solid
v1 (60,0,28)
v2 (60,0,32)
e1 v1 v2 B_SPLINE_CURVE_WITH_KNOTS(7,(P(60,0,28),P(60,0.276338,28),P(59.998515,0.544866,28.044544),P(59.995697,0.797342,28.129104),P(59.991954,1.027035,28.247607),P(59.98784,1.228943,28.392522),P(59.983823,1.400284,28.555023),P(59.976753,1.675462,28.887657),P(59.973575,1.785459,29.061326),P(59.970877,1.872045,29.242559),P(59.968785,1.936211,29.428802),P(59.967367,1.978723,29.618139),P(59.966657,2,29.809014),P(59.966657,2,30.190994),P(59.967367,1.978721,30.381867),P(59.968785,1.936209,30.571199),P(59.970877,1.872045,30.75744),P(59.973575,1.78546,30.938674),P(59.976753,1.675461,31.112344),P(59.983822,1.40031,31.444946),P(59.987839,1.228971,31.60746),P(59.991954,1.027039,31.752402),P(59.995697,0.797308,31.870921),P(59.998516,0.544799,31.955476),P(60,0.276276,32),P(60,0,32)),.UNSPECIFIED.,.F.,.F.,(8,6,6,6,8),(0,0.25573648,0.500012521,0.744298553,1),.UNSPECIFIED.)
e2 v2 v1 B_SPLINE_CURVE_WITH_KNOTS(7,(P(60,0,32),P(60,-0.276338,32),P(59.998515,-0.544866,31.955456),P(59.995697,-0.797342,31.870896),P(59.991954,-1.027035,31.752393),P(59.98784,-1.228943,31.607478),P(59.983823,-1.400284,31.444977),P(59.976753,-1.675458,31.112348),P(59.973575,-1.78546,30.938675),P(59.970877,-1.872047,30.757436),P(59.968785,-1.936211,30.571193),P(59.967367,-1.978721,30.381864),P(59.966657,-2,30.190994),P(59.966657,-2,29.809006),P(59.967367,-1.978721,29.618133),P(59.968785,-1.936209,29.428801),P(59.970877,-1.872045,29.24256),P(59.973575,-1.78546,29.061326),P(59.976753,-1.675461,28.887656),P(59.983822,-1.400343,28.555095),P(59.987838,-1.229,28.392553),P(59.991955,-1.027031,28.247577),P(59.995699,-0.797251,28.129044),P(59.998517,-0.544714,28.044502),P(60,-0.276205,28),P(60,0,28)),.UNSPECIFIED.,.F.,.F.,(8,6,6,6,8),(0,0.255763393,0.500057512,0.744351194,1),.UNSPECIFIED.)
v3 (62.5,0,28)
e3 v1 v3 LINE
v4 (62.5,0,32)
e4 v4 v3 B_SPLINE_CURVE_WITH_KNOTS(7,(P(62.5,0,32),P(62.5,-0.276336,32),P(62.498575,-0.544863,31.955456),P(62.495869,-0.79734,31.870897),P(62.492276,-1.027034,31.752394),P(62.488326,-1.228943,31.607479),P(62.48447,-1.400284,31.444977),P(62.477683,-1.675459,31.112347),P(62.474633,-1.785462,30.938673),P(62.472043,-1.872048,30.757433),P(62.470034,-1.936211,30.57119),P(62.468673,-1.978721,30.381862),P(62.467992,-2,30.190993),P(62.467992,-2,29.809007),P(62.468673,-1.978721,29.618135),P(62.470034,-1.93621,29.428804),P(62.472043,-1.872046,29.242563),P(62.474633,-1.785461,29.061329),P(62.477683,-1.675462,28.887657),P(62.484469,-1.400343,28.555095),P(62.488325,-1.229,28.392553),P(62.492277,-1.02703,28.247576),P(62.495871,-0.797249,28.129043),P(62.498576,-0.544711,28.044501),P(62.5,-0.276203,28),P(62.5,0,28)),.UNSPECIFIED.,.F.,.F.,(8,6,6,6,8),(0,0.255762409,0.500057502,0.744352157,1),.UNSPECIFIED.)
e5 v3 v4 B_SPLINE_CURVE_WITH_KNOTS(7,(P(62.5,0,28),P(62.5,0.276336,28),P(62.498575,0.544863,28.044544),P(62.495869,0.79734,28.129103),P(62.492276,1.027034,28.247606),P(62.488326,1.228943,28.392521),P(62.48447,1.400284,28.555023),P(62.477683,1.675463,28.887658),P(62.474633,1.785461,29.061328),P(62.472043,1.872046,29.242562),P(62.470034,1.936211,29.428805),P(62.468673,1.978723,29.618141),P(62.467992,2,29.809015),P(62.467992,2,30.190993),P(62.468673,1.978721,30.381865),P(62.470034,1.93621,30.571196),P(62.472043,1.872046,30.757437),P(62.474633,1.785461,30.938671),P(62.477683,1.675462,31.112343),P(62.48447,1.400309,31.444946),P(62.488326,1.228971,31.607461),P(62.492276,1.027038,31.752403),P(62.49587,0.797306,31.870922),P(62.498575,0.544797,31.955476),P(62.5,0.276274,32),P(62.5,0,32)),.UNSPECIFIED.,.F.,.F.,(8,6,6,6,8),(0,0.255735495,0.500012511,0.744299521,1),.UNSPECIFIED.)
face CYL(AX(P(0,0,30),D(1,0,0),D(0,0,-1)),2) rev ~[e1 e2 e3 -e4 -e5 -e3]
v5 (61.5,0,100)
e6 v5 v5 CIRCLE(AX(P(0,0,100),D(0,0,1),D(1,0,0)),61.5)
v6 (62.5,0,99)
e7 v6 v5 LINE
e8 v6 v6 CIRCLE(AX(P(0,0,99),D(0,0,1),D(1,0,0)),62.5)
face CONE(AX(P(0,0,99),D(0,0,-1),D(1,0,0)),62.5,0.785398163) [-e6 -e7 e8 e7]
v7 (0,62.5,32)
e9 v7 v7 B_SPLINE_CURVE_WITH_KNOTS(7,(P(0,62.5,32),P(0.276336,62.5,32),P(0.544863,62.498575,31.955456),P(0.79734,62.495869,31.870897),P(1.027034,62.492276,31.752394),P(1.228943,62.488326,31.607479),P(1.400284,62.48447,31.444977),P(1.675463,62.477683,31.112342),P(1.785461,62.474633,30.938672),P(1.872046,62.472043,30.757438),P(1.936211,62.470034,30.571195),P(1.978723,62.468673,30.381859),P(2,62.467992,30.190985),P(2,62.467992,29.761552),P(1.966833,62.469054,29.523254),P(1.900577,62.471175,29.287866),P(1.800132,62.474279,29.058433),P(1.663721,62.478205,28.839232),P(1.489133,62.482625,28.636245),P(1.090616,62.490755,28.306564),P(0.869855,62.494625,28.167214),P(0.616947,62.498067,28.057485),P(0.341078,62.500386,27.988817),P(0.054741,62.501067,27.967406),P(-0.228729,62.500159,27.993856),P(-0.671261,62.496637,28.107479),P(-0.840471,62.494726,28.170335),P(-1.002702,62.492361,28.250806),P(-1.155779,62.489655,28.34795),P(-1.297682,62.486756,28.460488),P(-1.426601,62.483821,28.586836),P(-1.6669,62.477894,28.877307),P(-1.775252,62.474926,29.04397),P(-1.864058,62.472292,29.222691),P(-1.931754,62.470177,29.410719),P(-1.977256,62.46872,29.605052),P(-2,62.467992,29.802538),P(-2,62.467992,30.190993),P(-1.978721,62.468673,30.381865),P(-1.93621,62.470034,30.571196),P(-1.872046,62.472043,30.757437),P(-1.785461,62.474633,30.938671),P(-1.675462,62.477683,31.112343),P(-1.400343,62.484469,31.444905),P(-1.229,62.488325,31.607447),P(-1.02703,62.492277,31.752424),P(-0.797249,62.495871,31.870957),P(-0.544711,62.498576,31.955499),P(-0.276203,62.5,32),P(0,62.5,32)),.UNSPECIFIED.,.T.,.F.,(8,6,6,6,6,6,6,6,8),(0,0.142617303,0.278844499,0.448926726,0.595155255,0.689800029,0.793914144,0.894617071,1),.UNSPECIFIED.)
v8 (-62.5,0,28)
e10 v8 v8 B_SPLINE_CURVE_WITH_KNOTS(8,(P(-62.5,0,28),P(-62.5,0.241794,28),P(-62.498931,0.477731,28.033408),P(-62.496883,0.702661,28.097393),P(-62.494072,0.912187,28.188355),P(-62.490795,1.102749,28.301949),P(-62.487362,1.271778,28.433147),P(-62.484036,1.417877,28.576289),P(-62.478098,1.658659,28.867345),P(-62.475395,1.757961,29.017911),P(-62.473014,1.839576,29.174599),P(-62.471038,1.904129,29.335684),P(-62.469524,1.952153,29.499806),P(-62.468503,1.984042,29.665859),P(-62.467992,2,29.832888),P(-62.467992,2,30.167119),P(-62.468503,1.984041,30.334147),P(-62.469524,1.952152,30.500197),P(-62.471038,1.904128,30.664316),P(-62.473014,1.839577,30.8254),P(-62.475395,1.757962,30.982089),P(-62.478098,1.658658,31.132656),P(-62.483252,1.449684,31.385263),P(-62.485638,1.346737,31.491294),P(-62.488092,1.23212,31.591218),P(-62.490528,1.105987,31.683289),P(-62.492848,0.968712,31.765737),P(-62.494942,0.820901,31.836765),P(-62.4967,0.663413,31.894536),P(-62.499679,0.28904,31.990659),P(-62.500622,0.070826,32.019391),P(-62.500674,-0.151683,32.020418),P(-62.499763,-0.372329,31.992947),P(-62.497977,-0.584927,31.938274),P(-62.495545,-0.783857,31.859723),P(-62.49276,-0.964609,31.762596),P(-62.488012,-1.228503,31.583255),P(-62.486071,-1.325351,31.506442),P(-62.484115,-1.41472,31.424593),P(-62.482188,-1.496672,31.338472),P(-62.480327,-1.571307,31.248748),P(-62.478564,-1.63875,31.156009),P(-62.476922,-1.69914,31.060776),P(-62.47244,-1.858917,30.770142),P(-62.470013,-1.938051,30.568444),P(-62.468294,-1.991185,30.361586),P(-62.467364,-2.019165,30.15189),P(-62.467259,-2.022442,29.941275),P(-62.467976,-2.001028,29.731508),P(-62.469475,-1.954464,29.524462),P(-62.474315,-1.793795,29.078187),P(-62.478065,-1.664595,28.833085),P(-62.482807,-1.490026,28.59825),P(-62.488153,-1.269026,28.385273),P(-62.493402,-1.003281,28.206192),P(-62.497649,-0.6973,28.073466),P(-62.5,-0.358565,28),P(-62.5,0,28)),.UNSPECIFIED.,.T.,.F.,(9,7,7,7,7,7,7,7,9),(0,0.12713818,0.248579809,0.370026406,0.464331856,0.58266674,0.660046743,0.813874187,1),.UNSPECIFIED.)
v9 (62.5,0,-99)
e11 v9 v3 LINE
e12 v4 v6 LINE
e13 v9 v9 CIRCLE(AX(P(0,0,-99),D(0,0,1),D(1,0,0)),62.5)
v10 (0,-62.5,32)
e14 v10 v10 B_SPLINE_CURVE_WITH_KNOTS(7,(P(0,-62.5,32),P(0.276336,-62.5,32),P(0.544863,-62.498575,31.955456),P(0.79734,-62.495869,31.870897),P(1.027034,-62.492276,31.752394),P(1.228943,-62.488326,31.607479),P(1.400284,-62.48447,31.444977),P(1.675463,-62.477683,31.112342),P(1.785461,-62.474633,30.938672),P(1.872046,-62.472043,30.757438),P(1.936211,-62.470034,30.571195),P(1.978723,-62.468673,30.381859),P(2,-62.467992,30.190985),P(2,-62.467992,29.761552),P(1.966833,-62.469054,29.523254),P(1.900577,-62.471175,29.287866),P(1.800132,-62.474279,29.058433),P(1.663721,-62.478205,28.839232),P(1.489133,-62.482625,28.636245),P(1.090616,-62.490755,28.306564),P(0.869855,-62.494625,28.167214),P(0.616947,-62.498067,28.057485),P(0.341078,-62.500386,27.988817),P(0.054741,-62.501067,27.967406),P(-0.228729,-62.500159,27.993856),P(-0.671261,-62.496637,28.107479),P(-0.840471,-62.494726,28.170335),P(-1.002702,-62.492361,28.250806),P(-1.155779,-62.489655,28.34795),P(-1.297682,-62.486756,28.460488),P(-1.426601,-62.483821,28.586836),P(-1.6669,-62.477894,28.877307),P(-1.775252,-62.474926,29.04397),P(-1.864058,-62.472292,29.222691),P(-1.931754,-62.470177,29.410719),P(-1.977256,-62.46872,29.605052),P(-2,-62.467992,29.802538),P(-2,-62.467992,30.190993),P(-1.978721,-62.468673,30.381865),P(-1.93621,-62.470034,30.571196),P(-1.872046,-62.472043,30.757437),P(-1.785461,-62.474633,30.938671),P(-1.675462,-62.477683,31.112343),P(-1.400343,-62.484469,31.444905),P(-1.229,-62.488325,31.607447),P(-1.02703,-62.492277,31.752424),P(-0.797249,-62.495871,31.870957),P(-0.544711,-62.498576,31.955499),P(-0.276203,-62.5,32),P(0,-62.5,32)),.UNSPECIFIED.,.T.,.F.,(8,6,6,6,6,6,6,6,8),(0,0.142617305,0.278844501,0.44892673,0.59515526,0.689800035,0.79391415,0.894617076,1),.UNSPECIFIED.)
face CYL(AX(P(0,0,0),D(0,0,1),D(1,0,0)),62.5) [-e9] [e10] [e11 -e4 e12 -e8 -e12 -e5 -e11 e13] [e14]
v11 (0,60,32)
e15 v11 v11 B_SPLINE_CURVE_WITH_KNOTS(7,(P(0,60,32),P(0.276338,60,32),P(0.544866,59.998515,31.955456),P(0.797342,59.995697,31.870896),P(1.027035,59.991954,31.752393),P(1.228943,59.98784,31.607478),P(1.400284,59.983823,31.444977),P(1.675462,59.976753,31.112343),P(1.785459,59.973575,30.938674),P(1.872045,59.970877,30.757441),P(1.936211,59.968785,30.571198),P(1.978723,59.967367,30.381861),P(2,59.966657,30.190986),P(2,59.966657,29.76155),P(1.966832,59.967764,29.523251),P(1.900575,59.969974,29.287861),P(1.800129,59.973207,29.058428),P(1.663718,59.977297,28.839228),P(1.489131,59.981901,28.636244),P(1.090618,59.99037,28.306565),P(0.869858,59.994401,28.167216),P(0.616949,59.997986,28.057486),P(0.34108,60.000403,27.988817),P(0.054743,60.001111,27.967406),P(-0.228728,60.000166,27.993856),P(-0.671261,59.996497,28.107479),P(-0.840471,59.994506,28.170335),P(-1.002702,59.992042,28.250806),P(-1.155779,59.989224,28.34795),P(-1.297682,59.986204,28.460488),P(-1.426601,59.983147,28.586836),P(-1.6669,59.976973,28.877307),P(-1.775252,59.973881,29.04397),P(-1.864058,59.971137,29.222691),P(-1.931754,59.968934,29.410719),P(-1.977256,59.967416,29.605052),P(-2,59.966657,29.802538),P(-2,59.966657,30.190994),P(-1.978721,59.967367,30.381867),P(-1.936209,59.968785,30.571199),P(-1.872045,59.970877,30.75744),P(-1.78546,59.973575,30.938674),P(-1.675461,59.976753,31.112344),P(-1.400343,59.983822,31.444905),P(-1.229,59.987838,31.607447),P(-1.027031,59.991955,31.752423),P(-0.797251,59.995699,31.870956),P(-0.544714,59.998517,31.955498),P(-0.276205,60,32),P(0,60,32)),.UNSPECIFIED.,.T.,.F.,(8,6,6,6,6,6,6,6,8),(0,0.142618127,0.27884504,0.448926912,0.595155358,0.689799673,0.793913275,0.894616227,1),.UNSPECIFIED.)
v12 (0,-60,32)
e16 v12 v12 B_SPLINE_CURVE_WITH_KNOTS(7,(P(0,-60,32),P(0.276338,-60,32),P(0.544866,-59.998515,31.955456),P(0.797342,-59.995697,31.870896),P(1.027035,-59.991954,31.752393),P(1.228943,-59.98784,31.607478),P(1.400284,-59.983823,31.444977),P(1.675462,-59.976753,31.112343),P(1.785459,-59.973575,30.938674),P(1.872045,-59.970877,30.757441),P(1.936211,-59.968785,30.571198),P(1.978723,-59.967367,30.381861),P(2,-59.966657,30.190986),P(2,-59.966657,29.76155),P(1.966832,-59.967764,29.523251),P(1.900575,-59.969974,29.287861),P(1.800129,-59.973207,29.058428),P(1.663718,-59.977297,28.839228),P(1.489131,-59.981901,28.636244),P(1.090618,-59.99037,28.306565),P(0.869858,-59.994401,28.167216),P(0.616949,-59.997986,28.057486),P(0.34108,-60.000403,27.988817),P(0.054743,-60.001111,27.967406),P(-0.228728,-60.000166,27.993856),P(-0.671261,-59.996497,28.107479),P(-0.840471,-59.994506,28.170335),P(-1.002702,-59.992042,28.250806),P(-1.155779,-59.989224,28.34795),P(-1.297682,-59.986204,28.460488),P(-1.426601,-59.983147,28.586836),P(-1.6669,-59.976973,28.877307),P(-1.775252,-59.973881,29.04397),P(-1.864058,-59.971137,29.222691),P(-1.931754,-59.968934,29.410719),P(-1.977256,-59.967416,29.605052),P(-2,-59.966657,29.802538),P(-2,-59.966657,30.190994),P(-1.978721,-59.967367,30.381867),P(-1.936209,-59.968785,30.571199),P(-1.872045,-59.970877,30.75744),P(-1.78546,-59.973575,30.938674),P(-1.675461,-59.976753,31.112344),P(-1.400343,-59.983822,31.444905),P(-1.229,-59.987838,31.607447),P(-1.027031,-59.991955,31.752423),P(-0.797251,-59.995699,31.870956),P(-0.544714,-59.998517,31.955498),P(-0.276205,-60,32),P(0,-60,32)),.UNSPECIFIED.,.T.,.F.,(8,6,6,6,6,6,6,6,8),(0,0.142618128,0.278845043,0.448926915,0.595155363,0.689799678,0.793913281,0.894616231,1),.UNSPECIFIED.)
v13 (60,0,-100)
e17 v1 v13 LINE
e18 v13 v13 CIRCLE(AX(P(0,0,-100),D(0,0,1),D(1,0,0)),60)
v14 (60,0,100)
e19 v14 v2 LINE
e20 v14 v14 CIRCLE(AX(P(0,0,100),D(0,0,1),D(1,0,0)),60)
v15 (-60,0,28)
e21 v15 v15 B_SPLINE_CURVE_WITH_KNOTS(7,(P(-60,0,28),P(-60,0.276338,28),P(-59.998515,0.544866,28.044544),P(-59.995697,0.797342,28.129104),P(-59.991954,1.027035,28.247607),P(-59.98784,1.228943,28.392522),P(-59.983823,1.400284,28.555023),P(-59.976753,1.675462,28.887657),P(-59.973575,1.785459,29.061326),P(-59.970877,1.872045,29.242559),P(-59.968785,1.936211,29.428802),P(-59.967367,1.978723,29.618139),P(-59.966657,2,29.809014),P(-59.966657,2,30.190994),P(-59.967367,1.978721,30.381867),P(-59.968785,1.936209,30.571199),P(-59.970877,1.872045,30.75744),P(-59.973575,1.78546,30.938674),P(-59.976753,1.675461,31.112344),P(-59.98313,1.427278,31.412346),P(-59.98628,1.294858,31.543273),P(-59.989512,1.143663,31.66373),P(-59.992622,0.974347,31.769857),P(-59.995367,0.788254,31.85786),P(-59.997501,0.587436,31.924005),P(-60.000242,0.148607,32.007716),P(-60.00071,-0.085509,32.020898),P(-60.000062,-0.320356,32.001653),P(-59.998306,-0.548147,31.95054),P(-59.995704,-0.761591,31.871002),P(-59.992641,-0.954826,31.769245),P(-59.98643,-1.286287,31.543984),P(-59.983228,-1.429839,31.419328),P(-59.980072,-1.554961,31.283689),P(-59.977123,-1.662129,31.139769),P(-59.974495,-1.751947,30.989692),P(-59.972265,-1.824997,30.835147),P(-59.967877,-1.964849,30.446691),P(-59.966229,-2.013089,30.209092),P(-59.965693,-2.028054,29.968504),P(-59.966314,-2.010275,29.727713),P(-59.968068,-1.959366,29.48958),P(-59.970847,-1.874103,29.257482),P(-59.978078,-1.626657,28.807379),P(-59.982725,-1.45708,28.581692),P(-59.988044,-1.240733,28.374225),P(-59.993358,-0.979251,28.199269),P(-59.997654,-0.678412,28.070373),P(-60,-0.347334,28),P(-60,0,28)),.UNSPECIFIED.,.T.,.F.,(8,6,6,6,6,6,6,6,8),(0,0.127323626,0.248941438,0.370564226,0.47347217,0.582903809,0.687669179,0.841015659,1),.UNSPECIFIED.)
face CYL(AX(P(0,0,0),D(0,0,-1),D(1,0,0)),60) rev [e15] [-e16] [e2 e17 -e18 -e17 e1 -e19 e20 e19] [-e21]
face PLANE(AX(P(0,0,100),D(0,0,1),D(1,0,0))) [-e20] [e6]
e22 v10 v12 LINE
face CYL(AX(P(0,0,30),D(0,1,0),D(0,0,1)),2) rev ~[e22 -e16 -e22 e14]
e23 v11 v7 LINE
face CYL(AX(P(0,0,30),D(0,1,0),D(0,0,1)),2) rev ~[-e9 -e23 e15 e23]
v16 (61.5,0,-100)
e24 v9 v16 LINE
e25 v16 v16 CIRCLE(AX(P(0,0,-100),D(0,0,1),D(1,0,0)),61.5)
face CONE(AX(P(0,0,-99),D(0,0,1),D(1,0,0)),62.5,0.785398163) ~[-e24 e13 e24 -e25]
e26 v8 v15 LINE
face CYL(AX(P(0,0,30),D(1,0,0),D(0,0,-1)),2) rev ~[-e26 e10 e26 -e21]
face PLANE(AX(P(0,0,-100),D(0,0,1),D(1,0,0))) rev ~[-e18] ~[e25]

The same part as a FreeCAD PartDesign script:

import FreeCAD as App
import Part
import Sketcher

V = App.Vector
Q = App.Units.Quantity


def edges_at(feature, points):
    """Names of the edges that pass closest to the given points."""
    edges = feature.Shape.Edges
    near = lambda p: min(range(len(edges)), key=lambda i: edges[i].distToShape(Part.Vertex(*p))[0])
    return sorted({f"Edge{near(p) + 1}" for p in points})

doc = App.newDocument("Part")
body = doc.addObject("PartDesign::Body", "Body")

# Sketch on XY plane
sketch1 = doc.addObject("Sketcher::SketchObject", "Sketch")
body.addObject(sketch1)
sketch1.AttachmentSupport = (doc.XY_Plane, [""])
sketch1.MapMode = "FlatFace"
sketch1.addGeometry([
    Part.Circle(V(0, 0, 0), V(0, 0, 1), 62.5),
    Part.Circle(V(0, 0, 0), V(0, 0, 1), 60),
], False)
sketch1.addConstraint([
    Sketcher.Constraint("Coincident", 0, 3, -1, 1),
    Sketcher.Constraint("Coincident", 1, 3, -1, 1),
    Sketcher.Constraint("Diameter", 0, Q("125 mm")),
    Sketcher.Constraint("Diameter", 1, Q("120 mm")),
])
pad1 = doc.addObject("PartDesign::Pad", "Pad")
body.addObject(pad1)
pad1.Profile = sketch1
pad1.Length = 200
pad1.Midplane = True

# Sketch on XZ plane
sketch2 = doc.addObject("Sketcher::SketchObject", "Sketch001")
body.addObject(sketch2)
sketch2.AttachmentSupport = (doc.XZ_Plane, [""])
sketch2.MapMode = "FlatFace"
sketch2.addGeometry(Part.Circle(V(0, 30, 0), V(0, 0, 1), 2), False)
sketch2.addConstraint([
    Sketcher.Constraint("PointOnObject", 0, 3, -2),
    Sketcher.Constraint("Diameter", 0, Q("4 mm")),
    Sketcher.Constraint("DistanceY", -1, 1, 0, 3, Q("30 mm")),
])
pocket1 = doc.addObject("PartDesign::Pocket", "Pocket")
body.addObject(pocket1)
pocket1.Profile = sketch2
pocket1.Length = 200
pocket1.Midplane = True

# Sketch on YZ plane
sketch3 = doc.addObject("Sketcher::SketchObject", "Sketch002")
body.addObject(sketch3)
sketch3.AttachmentSupport = (doc.YZ_Plane, [""])
sketch3.MapMode = "FlatFace"
sketch3.addGeometry(Part.Circle(V(0, 30, 0), V(0, 0, 1), 2), False)
sketch3.addConstraint([
    Sketcher.Constraint("PointOnObject", 0, 3, -2),
    Sketcher.Constraint("Diameter", 0, Q("4 mm")),
    Sketcher.Constraint("DistanceY", -1, 1, 0, 3, Q("30 mm")),
])
pocket2 = doc.addObject("PartDesign::Pocket", "Pocket001")
body.addObject(pocket2)
pocket2.Profile = sketch3
pocket2.Length = 148
pocket2.Midplane = True
doc.recompute()

chamfer = doc.addObject("PartDesign::Chamfer", "Chamfer")
body.addObject(chamfer)
chamfer.Base = (pocket2, edges_at(pocket2, [(-62.5, 0, 100)]))
chamfer.Size = 1
doc.recompute()

chamfer2 = doc.addObject("PartDesign::Chamfer", "Chamfer001")
body.addObject(chamfer2)
chamfer2.Base = (chamfer, edges_at(chamfer, [(-62.5, 0, -100)]))
chamfer2.Size = 1

doc.recompute()
